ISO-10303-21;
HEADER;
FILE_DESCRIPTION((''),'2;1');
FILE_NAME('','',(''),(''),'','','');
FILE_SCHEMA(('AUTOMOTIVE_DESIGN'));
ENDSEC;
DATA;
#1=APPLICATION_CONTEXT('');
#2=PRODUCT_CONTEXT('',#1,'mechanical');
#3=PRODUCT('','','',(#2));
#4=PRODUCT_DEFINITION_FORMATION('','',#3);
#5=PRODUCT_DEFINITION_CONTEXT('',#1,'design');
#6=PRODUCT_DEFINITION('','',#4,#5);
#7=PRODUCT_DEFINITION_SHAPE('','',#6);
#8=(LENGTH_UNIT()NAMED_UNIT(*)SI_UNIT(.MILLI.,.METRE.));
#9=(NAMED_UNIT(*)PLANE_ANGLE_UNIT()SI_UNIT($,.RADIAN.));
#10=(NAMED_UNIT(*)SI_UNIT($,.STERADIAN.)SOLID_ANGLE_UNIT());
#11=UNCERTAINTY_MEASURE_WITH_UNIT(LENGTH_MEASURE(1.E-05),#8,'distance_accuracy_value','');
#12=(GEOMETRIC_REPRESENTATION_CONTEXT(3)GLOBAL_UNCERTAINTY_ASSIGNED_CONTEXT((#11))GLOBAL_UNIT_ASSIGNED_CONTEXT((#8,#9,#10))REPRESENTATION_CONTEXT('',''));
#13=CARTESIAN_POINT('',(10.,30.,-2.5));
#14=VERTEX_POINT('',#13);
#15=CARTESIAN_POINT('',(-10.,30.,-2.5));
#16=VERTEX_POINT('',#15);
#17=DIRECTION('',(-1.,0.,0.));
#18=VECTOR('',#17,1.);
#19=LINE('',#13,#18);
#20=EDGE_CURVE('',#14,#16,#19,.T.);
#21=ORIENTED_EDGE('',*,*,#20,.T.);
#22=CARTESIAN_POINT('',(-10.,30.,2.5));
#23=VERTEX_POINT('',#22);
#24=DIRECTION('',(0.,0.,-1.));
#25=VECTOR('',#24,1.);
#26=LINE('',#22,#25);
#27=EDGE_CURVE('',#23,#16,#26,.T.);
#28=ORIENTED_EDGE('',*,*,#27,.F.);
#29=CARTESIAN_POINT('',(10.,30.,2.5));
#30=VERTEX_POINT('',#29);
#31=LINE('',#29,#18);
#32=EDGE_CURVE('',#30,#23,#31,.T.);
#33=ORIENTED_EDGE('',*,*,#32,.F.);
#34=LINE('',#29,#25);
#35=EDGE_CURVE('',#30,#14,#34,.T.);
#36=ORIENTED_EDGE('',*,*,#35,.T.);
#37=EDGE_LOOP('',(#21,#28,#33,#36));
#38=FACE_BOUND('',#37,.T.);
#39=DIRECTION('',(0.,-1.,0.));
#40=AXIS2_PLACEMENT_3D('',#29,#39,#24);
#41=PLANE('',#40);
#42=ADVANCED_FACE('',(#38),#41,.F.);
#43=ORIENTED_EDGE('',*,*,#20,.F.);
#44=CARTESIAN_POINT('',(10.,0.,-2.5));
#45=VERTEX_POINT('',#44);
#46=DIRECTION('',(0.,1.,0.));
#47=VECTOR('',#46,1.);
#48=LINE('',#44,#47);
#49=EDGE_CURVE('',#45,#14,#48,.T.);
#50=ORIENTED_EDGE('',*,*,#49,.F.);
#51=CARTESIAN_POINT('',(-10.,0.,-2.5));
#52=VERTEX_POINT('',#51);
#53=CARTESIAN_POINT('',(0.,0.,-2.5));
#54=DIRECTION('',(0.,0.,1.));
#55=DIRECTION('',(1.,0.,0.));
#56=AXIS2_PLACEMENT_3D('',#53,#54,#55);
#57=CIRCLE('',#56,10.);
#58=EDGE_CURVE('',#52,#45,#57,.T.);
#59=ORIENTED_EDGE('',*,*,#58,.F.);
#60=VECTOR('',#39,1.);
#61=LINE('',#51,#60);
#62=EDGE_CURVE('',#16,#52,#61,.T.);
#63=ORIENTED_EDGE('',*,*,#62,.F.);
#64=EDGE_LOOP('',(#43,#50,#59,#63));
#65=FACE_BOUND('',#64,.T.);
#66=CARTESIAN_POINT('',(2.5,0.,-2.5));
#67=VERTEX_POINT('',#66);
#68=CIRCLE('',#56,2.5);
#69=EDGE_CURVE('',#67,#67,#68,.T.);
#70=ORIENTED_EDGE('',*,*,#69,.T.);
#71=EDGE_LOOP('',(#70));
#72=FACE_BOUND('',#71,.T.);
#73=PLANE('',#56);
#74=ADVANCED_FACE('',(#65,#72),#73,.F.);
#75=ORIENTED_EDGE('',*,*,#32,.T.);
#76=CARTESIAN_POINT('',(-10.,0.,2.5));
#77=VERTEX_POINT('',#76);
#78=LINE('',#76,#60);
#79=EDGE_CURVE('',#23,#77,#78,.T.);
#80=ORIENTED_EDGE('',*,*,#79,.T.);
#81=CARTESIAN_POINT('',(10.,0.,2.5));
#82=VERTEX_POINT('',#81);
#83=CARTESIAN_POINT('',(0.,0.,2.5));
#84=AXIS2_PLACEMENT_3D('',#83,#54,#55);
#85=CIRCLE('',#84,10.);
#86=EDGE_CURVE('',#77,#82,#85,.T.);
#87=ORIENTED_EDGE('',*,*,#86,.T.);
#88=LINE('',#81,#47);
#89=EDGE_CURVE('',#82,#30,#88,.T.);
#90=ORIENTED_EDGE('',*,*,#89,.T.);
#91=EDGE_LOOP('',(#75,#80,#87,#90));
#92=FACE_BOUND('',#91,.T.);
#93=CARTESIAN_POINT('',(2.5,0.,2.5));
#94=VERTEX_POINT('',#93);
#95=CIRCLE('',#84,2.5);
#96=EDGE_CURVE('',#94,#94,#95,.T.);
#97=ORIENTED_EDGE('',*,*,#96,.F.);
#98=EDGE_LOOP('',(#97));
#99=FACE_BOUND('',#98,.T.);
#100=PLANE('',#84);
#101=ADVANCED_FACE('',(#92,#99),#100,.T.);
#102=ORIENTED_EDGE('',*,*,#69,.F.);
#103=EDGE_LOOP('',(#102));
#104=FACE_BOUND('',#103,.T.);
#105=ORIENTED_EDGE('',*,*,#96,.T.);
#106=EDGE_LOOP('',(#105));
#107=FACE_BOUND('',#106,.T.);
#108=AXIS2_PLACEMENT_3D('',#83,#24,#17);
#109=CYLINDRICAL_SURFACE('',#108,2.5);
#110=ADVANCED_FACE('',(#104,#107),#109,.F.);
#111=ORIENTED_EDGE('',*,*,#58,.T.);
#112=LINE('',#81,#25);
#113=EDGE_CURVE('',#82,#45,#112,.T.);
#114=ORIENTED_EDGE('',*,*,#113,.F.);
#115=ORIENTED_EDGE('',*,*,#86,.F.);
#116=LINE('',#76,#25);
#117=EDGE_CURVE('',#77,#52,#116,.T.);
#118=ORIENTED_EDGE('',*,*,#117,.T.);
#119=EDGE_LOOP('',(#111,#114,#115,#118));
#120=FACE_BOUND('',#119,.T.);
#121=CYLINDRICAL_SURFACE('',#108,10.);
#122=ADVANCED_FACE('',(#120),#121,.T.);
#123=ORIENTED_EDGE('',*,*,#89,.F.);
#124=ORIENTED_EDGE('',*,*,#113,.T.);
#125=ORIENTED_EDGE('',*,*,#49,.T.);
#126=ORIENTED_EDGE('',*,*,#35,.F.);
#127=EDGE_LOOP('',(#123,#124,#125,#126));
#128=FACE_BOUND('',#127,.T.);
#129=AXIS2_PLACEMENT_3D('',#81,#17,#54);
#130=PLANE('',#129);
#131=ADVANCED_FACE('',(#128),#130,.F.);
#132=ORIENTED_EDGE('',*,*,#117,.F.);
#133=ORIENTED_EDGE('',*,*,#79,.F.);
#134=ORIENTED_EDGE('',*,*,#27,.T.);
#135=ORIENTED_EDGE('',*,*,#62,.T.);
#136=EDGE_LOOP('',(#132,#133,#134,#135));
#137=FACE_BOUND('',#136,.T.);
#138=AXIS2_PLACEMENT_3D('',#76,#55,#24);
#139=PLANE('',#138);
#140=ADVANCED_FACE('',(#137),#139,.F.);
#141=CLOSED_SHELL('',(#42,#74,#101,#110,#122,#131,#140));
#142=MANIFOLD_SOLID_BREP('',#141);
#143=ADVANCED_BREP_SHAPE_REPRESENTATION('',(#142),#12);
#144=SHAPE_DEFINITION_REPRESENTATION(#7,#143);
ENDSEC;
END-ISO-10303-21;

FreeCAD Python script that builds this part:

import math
import FreeCAD as App
import Part
import Sketcher
from FreeCAD import Vector

doc = App.newDocument("Part")
body = doc.addObject("PartDesign::Body", "Body")

# Sketch on XY plane
sketch1 = doc.addObject("Sketcher::SketchObject", "Sketch")
body.addObject(sketch1)
sketch1.AttachmentSupport = (doc.XY_Plane, [""])
sketch1.MapMode = "FlatFace"
sketch1.addGeometry([
    Part.LineSegment(Vector(10, 0, 0), Vector(10, 30, 0)),  # 0
    Part.LineSegment(Vector(10, 30, 0), Vector(-10, 30, 0)),  # 1
    Part.LineSegment(Vector(-10, 30, 0), Vector(-10, 0, 0)),  # 2
    Part.ArcOfCircle(Part.Circle(Vector(0, 0, 0), Vector(0, 0, 1), 10), math.radians(180), math.radians(360)),  # 3
    Part.Circle(Vector(0, 0, 0), Vector(0, 0, 1), 2.5),  # 4
], False)
sketch1.addConstraint([
    Sketcher.Constraint("Coincident", 0, 2, 1, 1),
    Sketcher.Constraint("Coincident", 1, 2, 2, 1),
    Sketcher.Constraint("Tangent", 2, 2, 3, 1),
    Sketcher.Constraint("Tangent", 3, 2, 0, 1),
    Sketcher.Constraint("Vertical", 0),
    Sketcher.Constraint("Horizontal", 1),
    Sketcher.Constraint("Vertical", 2),
    Sketcher.Constraint("Coincident", 3, 3, -1, 1),
    Sketcher.Constraint("Coincident", 4, 3, -1, 1),
    Sketcher.Constraint("Diameter", 4, 5.0),
    Sketcher.Constraint("Radius", 3, 10.0),
    Sketcher.Constraint("DistanceY", 0, 1, 0, 2, 30.0),
])
pad1 = doc.addObject("PartDesign::Pad", "Pad")
body.addObject(pad1)
pad1.Profile = sketch1
pad1.Length = 5
pad1.Midplane = True

doc.recompute()
